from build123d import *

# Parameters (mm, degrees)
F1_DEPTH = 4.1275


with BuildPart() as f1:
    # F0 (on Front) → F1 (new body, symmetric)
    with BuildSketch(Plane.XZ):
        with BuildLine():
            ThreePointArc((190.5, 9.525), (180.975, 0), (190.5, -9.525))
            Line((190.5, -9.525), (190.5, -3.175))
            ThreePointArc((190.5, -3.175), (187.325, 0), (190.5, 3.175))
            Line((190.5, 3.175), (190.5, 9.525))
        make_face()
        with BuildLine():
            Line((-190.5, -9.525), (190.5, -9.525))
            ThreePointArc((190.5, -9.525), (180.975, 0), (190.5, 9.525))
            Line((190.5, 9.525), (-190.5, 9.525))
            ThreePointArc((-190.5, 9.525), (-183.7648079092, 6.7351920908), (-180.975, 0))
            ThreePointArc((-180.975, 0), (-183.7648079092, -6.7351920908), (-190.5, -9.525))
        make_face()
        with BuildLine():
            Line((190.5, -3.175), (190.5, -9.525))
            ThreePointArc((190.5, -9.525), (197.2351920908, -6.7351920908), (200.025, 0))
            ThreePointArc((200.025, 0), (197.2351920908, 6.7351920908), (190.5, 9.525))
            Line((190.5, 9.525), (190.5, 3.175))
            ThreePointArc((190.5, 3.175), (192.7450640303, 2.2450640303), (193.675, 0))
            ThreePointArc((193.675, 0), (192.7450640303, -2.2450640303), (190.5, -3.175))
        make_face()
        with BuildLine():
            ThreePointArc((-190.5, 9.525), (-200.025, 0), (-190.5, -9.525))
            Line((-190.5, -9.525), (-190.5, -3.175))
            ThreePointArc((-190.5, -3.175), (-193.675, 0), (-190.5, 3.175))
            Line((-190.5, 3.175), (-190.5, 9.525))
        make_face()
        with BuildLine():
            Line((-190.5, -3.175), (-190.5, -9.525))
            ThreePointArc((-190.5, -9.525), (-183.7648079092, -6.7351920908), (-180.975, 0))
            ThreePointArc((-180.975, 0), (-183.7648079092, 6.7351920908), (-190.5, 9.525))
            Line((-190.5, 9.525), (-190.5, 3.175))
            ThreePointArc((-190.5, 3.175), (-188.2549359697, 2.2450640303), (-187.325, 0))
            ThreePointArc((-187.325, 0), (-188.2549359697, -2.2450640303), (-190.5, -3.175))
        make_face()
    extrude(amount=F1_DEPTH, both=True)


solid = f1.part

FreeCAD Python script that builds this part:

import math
import FreeCAD as App
import Part
import Sketcher

V = App.Vector
Q = App.Units.Quantity

doc = App.newDocument("Part")
body = doc.addObject("PartDesign::Body", "Body")

# Sketch on XZ plane
sketch1 = body.newObject("Sketcher::SketchObject", "Sketch")
sketch1.AttachmentSupport = (doc.getObject("XZ_Plane"), [""])
sketch1.MapMode = "FlatFace"
sketch1.addGeometry(Part.LineSegment(V(190.5, 9.5, 0), V(-190.5, 9.5, 0)), False)
sketch1.addGeometry(Part.ArcOfCircle(Part.Circle(V(-190.5, 0, 0), V(0, 0, 1), 9.5), math.radians(90), math.radians(270)), False)
sketch1.addGeometry(Part.LineSegment(V(-190.5, -9.5, 0), V(190.5, -9.5, 0)), False)
sketch1.addGeometry(Part.ArcOfCircle(Part.Circle(V(190.5, 0, 0), V(0, 0, 1), 9.5), math.radians(-90), math.radians(0)), False)
sketch1.addGeometry(Part.ArcOfCircle(Part.Circle(V(190.5, 0, 0), V(0, 0, 1), 9.5), math.radians(0), math.radians(90)), False)
sketch1.addGeometry(Part.ArcOfCircle(Part.Circle(V(190.5, 0, 0), V(0, 0, 1), 3.2), math.radians(90), math.radians(270)), False)
sketch1.addGeometry(Part.ArcOfCircle(Part.Circle(V(190.5, 0, 0), V(0, 0, 1), 3.2), math.radians(0), math.radians(90)), False)
sketch1.addGeometry(Part.ArcOfCircle(Part.Circle(V(190.5, 0, 0), V(0, 0, 1), 3.2), math.radians(-90), math.radians(0)), False)
sketch1.addGeometry(Part.ArcOfCircle(Part.Circle(V(-190.5, 0, 0), V(0, 0, 1), 3.2), math.radians(0), math.radians(90)), False)
sketch1.addGeometry(Part.ArcOfCircle(Part.Circle(V(-190.5, 0, 0), V(0, 0, 1), 3.2), math.radians(-90), math.radians(0)), False)
sketch1.addGeometry(Part.ArcOfCircle(Part.Circle(V(-190.5, 0, 0), V(0, 0, 1), 3.2), math.radians(90), math.radians(270)), False)
sketch1.addConstraint(Sketcher.Constraint("Tangent", 0, 2, 1, 1))
sketch1.addConstraint(Sketcher.Constraint("Tangent", 1, 2, 2, 1))
sketch1.addConstraint(Sketcher.Constraint("Tangent", 2, 2, 3, 1))
sketch1.addConstraint(Sketcher.Constraint("Tangent", 3, 2, 4, 1))
sketch1.addConstraint(Sketcher.Constraint("Tangent", 4, 2, 0, 1))
sketch1.addConstraint(Sketcher.Constraint("Tangent", 5, 1, 6, 2))
sketch1.addConstraint(Sketcher.Constraint("Tangent", 6, 1, 7, 2))
sketch1.addConstraint(Sketcher.Constraint("Tangent", 7, 1, 5, 2))
sketch1.addConstraint(Sketcher.Constraint("Tangent", 8, 1, 9, 2))
sketch1.addConstraint(Sketcher.Constraint("Tangent", 9, 1, 10, 2))
sketch1.addConstraint(Sketcher.Constraint("Tangent", 10, 1, 8, 2))
sketch1.addConstraint(Sketcher.Constraint("Horizontal", 0))
sketch1.addConstraint(Sketcher.Constraint("Horizontal", 2))
sketch1.addConstraint(Sketcher.Constraint("Coincident", 5, 3, 3, 3))
sketch1.addConstraint(Sketcher.Constraint("Coincident", 8, 3, 1, 3))
sketch1.addConstraint(Sketcher.Constraint("Equal", 1, 3))
sketch1.addConstraint(Sketcher.Constraint("Equal", 7, 8))
sketch1.addConstraint(Sketcher.Constraint("Symmetric", 1, 3, 3, 3, -1, 1))
sketch1.addConstraint(Sketcher.Constraint("PointOnObject", 3, 2, -1))
sketch1.addConstraint(Sketcher.Constraint("PointOnObject", 6, 1, -1))
sketch1.addConstraint(Sketcher.Constraint("PointOnObject", 8, 1, -1))
sketch1.addConstraint(Sketcher.Constraint("Vertical", 4, 2, 5, 1))
sketch1.addConstraint(Sketcher.Constraint("Vertical", 5, 1, 7, 1))
sketch1.addConstraint(Sketcher.Constraint("Vertical", 1, 2, 9, 1))
sketch1.addConstraint(Sketcher.Constraint("Vertical", 9, 1, 10, 1))
sketch1.addConstraint(Sketcher.Constraint("DistanceX", 0, 2, 0, 1, Q("15 in")))
sketch1.addConstraint(Sketcher.Constraint("Radius", 1, Q("0.375 in")))
sketch1.addConstraint(Sketcher.Constraint("Radius", 5, Q("0.125 in")))
pad1 = body.newObject("PartDesign::Pad", "Pad")
pad1.Profile = sketch1
pad1.Length = Q("0.325 in")
pad1.Midplane = True

doc.recompute()
